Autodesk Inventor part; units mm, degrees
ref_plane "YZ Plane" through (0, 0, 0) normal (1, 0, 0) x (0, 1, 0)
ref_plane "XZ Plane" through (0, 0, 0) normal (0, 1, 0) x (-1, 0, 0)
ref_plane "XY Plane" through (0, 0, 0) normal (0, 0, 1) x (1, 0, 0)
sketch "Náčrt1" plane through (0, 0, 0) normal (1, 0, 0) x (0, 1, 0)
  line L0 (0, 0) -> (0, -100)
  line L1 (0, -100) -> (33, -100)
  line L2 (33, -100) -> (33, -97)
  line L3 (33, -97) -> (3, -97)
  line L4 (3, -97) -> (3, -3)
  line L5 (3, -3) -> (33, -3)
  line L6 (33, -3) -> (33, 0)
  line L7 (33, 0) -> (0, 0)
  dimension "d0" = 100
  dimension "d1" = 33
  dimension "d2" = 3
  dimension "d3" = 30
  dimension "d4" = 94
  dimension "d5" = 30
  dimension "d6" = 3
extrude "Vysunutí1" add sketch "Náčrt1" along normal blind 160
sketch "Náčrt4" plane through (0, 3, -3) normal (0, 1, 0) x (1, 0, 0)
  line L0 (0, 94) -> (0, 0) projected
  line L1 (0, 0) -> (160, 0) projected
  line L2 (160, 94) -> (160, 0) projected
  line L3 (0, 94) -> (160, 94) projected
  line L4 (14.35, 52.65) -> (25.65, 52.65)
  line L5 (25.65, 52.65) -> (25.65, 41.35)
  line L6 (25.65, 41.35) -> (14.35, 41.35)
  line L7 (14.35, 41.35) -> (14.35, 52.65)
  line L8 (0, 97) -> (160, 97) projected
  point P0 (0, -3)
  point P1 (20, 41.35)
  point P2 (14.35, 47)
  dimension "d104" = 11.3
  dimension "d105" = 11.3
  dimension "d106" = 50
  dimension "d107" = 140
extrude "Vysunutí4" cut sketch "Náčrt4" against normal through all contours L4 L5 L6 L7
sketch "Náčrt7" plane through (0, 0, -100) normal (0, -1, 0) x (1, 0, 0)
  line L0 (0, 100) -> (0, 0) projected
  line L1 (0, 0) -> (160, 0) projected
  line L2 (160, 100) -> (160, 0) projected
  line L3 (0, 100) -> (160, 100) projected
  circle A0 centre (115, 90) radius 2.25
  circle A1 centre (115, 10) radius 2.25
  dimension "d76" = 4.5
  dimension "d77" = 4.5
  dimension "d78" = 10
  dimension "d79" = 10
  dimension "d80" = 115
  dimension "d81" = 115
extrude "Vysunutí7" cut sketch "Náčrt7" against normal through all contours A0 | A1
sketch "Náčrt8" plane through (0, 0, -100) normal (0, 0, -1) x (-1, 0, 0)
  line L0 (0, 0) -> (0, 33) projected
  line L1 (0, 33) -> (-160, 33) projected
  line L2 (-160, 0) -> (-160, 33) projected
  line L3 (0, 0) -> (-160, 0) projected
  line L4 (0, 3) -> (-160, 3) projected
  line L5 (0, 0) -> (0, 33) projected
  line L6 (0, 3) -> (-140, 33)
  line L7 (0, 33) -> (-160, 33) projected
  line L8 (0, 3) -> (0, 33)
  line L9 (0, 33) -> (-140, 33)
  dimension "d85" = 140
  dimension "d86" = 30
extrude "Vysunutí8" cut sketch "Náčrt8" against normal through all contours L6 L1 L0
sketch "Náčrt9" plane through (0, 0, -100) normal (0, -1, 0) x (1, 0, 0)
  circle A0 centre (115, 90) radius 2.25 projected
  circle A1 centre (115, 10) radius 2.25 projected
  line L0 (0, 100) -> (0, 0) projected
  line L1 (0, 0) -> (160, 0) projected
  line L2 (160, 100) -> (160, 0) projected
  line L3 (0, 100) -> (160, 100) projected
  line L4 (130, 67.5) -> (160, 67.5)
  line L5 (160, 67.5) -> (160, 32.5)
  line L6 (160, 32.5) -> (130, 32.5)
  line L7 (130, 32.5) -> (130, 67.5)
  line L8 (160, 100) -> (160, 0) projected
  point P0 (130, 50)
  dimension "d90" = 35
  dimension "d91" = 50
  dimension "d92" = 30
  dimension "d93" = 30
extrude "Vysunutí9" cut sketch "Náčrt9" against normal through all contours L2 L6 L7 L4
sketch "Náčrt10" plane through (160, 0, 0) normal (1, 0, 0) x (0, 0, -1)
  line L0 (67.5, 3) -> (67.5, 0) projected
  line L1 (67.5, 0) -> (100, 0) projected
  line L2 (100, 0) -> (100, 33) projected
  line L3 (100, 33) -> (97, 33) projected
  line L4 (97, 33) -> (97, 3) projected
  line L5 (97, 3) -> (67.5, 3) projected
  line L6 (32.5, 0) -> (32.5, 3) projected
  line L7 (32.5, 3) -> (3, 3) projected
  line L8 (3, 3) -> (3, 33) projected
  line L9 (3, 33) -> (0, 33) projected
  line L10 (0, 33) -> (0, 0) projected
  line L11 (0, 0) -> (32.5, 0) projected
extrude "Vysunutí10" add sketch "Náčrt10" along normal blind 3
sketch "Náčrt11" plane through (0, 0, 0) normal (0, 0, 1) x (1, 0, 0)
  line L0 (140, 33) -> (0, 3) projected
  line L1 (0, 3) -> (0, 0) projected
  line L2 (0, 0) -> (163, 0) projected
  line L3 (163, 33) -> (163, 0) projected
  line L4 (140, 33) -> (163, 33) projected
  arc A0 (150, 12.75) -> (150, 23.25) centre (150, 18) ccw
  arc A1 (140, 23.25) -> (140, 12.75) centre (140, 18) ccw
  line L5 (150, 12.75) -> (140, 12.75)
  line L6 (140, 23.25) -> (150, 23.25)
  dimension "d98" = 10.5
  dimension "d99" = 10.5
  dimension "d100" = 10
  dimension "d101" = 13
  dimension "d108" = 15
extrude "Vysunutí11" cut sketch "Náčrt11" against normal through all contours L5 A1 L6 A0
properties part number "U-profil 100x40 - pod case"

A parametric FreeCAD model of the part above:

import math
import FreeCAD as App
import Part
import Sketcher


def add_polygon(sketch, points):
    """Adds a closed chain of lines whose ends are joined by coincident constraints."""
    first, n = sketch.GeometryCount, len(points)
    for a, b in zip(points, points[1:] + points[:1]):
        sketch.addGeometry(Part.LineSegment(App.Vector(*a, 0), App.Vector(*b, 0)), False)
    for i in range(n):
        sketch.addConstraint(Sketcher.Constraint("Coincident", first + i, 2, first + (i + 1) % n, 1))

doc = App.newDocument("Part")
params = doc.addObject("Spreadsheet::Sheet", "Params")
for row, (alias, value) in enumerate([
    ("sketch1_width", "33 mm"),
    ("sketch1_width2", "30 mm"),
    ("sketch1_height", "100 mm"),
    ("sketch1_height2", "3 mm"),
    ("pad1_length", "160 mm"),
    ("sketch2_width", "11.3 mm"),
    ("sketch3_diameter", "4.5 mm"),
    ("sketch4_width", "140 mm"),
    ("sketch4_height", "30 mm"),
    ("sketch5_width", "30 mm"),
    ("sketch5_height", "35 mm"),
    ("sketch6_width", "3 mm"),
    ("sketch6_width2", "33 mm"),
    ("sketch6_height", "29.5 mm"),
    ("pad2_length", "3 mm"),
    ("sketch7_width", "10 mm"),
    ("sketch7_radius", "5.25 mm"),
], start=1):
    params.set(f"A{row}", alias)
    params.set(f"B{row}", "=" + value)
    params.setAlias(f"B{row}", alias)

body = doc.addObject("PartDesign::Body", "Body")

sketch1 = body.newObject("Sketcher::SketchObject", "Sketch")
sketch1.AttachmentSupport = (doc.getObject("YZ_Plane"), [""])
sketch1.MapMode = "FlatFace"
add_polygon(sketch1, [(33, 0), (0, 0), (0, -100), (33, -100), (33, -97), (3, -97), (3, -3), (33, -3)])
sketch1.addConstraint(Sketcher.Constraint("Horizontal", 0))
sketch1.addConstraint(Sketcher.Constraint("Vertical", 1))
sketch1.addConstraint(Sketcher.Constraint("Horizontal", 2))
sketch1.addConstraint(Sketcher.Constraint("Vertical", 3))
sketch1.addConstraint(Sketcher.Constraint("Horizontal", 4))
sketch1.addConstraint(Sketcher.Constraint("Vertical", 5))
sketch1.addConstraint(Sketcher.Constraint("Horizontal", 6))
sketch1.addConstraint(Sketcher.Constraint("Vertical", 7))
sketch1.addConstraint(Sketcher.Constraint("Coincident", 0, 2, -1, 1))
sketch1.addConstraint(Sketcher.Constraint("Vertical", 3, 2, 6, 2))
sketch1.addConstraint(Sketcher.Constraint("Equal", 3, 7))
sketch1.addConstraint(Sketcher.Constraint("DistanceX", 0, 2, 0, 1, 33.0))
sketch1.addConstraint(Sketcher.Constraint("DistanceX", 4, 2, 4, 1, 30.0))
sketch1.addConstraint(Sketcher.Constraint("DistanceY", 1, 2, 1, 1, 100.0))
sketch1.addConstraint(Sketcher.Constraint("DistanceY", 3, 1, 3, 2, 3.0))
sketch1.setExpression("Constraints[19]", "Params.sketch1_width")
sketch1.setExpression("Constraints[20]", "Params.sketch1_width2")
sketch1.setExpression("Constraints[21]", "Params.sketch1_height")
sketch1.setExpression("Constraints[22]", "Params.sketch1_height2")
pad1 = body.newObject("PartDesign::Pad", "Pad")
pad1.Profile = sketch1
pad1.setExpression("Length", "Params.pad1_length")

sketch2 = body.newObject("Sketcher::SketchObject", "Sketch001")
sketch2.AttachmentSupport = (doc.getObject("XZ_Plane"), [""])
sketch2.MapMode = "FlatFace"
sketch2.AttachmentOffset = App.Placement(App.Vector(0, 0, -3), App.Rotation())
add_polygon(sketch2, [(26, -56), (14, -56), (14, -44), (26, -44)])
sketch2.addConstraint(Sketcher.Constraint("Horizontal", 0))
sketch2.addConstraint(Sketcher.Constraint("Vertical", 1))
sketch2.addConstraint(Sketcher.Constraint("Horizontal", 2))
sketch2.addConstraint(Sketcher.Constraint("Vertical", 3))
sketch2.addConstraint(Sketcher.Constraint("Equal", 2, 1))
sketch2.addConstraint(Sketcher.Constraint("DistanceX", 0, 2, 0, 1, 11.3))
sketch2.addConstraint(Sketcher.Constraint("DistanceX", -1, 1, 0, 2, 14.35))
sketch2.addConstraint(Sketcher.Constraint("DistanceY", 0, 2, -1, 1, 55.65))
sketch2.setExpression("Constraints[9]", "Params.sketch2_width")
pocket1 = body.newObject("PartDesign::Pocket", "Pocket")
pocket1.Profile = sketch2
pocket1.Type = "ThroughAll"
pocket1.Reversed = True

sketch3 = body.newObject("Sketcher::SketchObject", "Sketch002")
sketch3.AttachmentSupport = (doc.getObject("XZ_Plane"), [""])
sketch3.MapMode = "FlatFace"
sketch3.addGeometry(Part.Circle(App.Vector(115, -10, 0), App.Vector(0, 0, 1), 2.2), False)
sketch3.addGeometry(Part.Circle(App.Vector(115, -90, 0), App.Vector(0, 0, 1), 2.2), False)
sketch3.addConstraint(Sketcher.Constraint("Equal", 0, 1))
sketch3.addConstraint(Sketcher.Constraint("Vertical", 0, 3, 1, 3))
sketch3.addConstraint(Sketcher.Constraint("Diameter", 0, 4.5))
sketch3.addConstraint(Sketcher.Constraint("DistanceX", -1, 1, 0, 3, 115.0))
sketch3.addConstraint(Sketcher.Constraint("DistanceY", 0, 3, -1, 1, 10.0))
sketch3.addConstraint(Sketcher.Constraint("DistanceY", 1, 3, -1, 1, 90.0))
sketch3.setExpression("Constraints[2]", "Params.sketch3_diameter")
pocket2 = body.newObject("PartDesign::Pocket", "Pocket001")
pocket2.Profile = sketch3
pocket2.Type = "ThroughAll"

sketch4 = body.newObject("Sketcher::SketchObject", "Sketch003")
sketch4.AttachmentSupport = (doc.getObject("XY_Plane"), [""])
sketch4.MapMode = "FlatFace"
sketch4.AttachmentOffset = App.Placement(App.Vector(0, 0, -100), App.Rotation())
add_polygon(sketch4, [(140, 33), (0, 3), (0, 33)])
sketch4.addConstraint(Sketcher.Constraint("Vertical", 1))
sketch4.addConstraint(Sketcher.Constraint("Horizontal", 2))
sketch4.addConstraint(Sketcher.Constraint("PointOnObject", 0, 2, -2))
sketch4.addConstraint(Sketcher.Constraint("DistanceX", 2, 1, 2, 2, 140.0))
sketch4.addConstraint(Sketcher.Constraint("DistanceY", 1, 1, 1, 2, 30.0))
sketch4.addConstraint(Sketcher.Constraint("DistanceY", -1, 1, 0, 2, 3.0))
sketch4.setExpression("Constraints[6]", "Params.sketch4_width")
sketch4.setExpression("Constraints[7]", "Params.sketch4_height")
pocket3 = body.newObject("PartDesign::Pocket", "Pocket002")
pocket3.Profile = sketch4
pocket3.Type = "ThroughAll"
pocket3.Reversed = True

sketch5 = body.newObject("Sketcher::SketchObject", "Sketch004")
sketch5.AttachmentSupport = (doc.getObject("XZ_Plane"), [""])
sketch5.MapMode = "FlatFace"
add_polygon(sketch5, [(160, -68), (160, -32), (130, -32), (130, -68)])
sketch5.addConstraint(Sketcher.Constraint("Vertical", 0))
sketch5.addConstraint(Sketcher.Constraint("Horizontal", 1))
sketch5.addConstraint(Sketcher.Constraint("Vertical", 2))
sketch5.addConstraint(Sketcher.Constraint("Horizontal", 3))
sketch5.addConstraint(Sketcher.Constraint("DistanceX", 1, 2, 1, 1, 30.0))
sketch5.addConstraint(Sketcher.Constraint("DistanceY", 0, 1, 0, 2, 35.0))
sketch5.addConstraint(Sketcher.Constraint("DistanceX", -1, 1, 0, 2, 160.0))
sketch5.addConstraint(Sketcher.Constraint("DistanceY", 0, 2, -1, 1, 32.5))
sketch5.setExpression("Constraints[8]", "Params.sketch5_width")
sketch5.setExpression("Constraints[9]", "Params.sketch5_height")
pocket4 = body.newObject("PartDesign::Pocket", "Pocket003")
pocket4.Profile = sketch5
pocket4.Type = "ThroughAll"

sketch6 = body.newObject("Sketcher::SketchObject", "Sketch005")
sketch6.AttachmentSupport = (doc.getObject("YZ_Plane"), [""])
sketch6.MapMode = "FlatFace"
sketch6.AttachmentOffset = App.Placement(App.Vector(0, 0, 160), App.Rotation())
add_polygon(sketch6, [(3, -97), (3, -67.5), (0, -67.5), (0, -100), (33, -100), (33, -97)])
add_polygon(sketch6, [(0, 0), (0, -32.5), (3, -32.5), (3, -3), (33, -3), (33, 0)])
sketch6.addConstraint(Sketcher.Constraint("Vertical", 0))
sketch6.addConstraint(Sketcher.Constraint("Horizontal", 1))
sketch6.addConstraint(Sketcher.Constraint("Vertical", 2))
sketch6.addConstraint(Sketcher.Constraint("Horizontal", 3))
sketch6.addConstraint(Sketcher.Constraint("Vertical", 4))
sketch6.addConstraint(Sketcher.Constraint("Horizontal", 5))
sketch6.addConstraint(Sketcher.Constraint("Vertical", 6))
sketch6.addConstraint(Sketcher.Constraint("Horizontal", 7))
sketch6.addConstraint(Sketcher.Constraint("Vertical", 8))
sketch6.addConstraint(Sketcher.Constraint("Horizontal", 9))
sketch6.addConstraint(Sketcher.Constraint("Vertical", 10))
sketch6.addConstraint(Sketcher.Constraint("Horizontal", 11))
sketch6.addConstraint(Sketcher.Constraint("Coincident", 11, 2, -1, 1))
sketch6.addConstraint(Sketcher.Constraint("PointOnObject", 1, 2, -2))
sketch6.addConstraint(Sketcher.Constraint("Vertical", 5, 2, 7, 2))
sketch6.addConstraint(Sketcher.Constraint("Vertical", 4, 2, 9, 2))
sketch6.addConstraint(Sketcher.Constraint("Equal", 7, 4))
sketch6.addConstraint(Sketcher.Constraint("Equal", 2, 6))
sketch6.addConstraint(Sketcher.Constraint("Equal", 0, 8))
sketch6.addConstraint(Sketcher.Constraint("DistanceX", 1, 2, 1, 1, 3.0))
sketch6.addConstraint(Sketcher.Constraint("DistanceX", 3, 1, 3, 2, 33.0))
sketch6.addConstraint(Sketcher.Constraint("DistanceY", 0, 1, 0, 2, 29.5))
sketch6.addConstraint(Sketcher.Constraint("DistanceY", 2, 2, -1, 1, 100.0))
sketch6.setExpression("Constraints[31]", "Params.sketch6_width")
sketch6.setExpression("Constraints[32]", "Params.sketch6_width2")
sketch6.setExpression("Constraints[33]", "Params.sketch6_height")
pad2 = body.newObject("PartDesign::Pad", "Pad001")
pad2.Profile = sketch6
pad2.setExpression("Length", "Params.pad2_length")

sketch7 = body.newObject("Sketcher::SketchObject", "Sketch006")
sketch7.AttachmentSupport = (doc.getObject("XY_Plane"), [""])
sketch7.MapMode = "FlatFace"
sketch7.addGeometry(Part.LineSegment(App.Vector(140, 13, 0), App.Vector(150, 13, 0)), False)
sketch7.addGeometry(Part.ArcOfCircle(Part.Circle(App.Vector(150, 18, 0), App.Vector(0, 0, 1), 5), math.radians(-90), math.radians(90)), False)
sketch7.addGeometry(Part.LineSegment(App.Vector(150, 23, 0), App.Vector(140, 23, 0)), False)
sketch7.addGeometry(Part.ArcOfCircle(Part.Circle(App.Vector(140, 18, 0), App.Vector(0, 0, 1), 5), math.radians(90), math.radians(270)), False)
sketch7.addConstraint(Sketcher.Constraint("Tangent", 0, 2, 1, 1))
sketch7.addConstraint(Sketcher.Constraint("Tangent", 1, 2, 2, 1))
sketch7.addConstraint(Sketcher.Constraint("Tangent", 2, 2, 3, 1))
sketch7.addConstraint(Sketcher.Constraint("Tangent", 3, 2, 0, 1))
sketch7.addConstraint(Sketcher.Constraint("Horizontal", 0))
sketch7.addConstraint(Sketcher.Constraint("Horizontal", 2))
sketch7.addConstraint(Sketcher.Constraint("DistanceX", 0, 1, 0, 2, 10.0))
sketch7.addConstraint(Sketcher.Constraint("Radius", 1, 5.25))
sketch7.addConstraint(Sketcher.Constraint("DistanceX", -1, 1, 1, 3, 150.0))
sketch7.addConstraint(Sketcher.Constraint("DistanceY", -1, 1, 1, 3, 18.0))
sketch7.setExpression("Constraints[6]", "Params.sketch7_width")
sketch7.setExpression("Constraints[7]", "Params.sketch7_radius")
pocket5 = body.newObject("PartDesign::Pocket", "Pocket004")
pocket5.Profile = sketch7
pocket5.Type = "ThroughAll"

doc.recompute()
